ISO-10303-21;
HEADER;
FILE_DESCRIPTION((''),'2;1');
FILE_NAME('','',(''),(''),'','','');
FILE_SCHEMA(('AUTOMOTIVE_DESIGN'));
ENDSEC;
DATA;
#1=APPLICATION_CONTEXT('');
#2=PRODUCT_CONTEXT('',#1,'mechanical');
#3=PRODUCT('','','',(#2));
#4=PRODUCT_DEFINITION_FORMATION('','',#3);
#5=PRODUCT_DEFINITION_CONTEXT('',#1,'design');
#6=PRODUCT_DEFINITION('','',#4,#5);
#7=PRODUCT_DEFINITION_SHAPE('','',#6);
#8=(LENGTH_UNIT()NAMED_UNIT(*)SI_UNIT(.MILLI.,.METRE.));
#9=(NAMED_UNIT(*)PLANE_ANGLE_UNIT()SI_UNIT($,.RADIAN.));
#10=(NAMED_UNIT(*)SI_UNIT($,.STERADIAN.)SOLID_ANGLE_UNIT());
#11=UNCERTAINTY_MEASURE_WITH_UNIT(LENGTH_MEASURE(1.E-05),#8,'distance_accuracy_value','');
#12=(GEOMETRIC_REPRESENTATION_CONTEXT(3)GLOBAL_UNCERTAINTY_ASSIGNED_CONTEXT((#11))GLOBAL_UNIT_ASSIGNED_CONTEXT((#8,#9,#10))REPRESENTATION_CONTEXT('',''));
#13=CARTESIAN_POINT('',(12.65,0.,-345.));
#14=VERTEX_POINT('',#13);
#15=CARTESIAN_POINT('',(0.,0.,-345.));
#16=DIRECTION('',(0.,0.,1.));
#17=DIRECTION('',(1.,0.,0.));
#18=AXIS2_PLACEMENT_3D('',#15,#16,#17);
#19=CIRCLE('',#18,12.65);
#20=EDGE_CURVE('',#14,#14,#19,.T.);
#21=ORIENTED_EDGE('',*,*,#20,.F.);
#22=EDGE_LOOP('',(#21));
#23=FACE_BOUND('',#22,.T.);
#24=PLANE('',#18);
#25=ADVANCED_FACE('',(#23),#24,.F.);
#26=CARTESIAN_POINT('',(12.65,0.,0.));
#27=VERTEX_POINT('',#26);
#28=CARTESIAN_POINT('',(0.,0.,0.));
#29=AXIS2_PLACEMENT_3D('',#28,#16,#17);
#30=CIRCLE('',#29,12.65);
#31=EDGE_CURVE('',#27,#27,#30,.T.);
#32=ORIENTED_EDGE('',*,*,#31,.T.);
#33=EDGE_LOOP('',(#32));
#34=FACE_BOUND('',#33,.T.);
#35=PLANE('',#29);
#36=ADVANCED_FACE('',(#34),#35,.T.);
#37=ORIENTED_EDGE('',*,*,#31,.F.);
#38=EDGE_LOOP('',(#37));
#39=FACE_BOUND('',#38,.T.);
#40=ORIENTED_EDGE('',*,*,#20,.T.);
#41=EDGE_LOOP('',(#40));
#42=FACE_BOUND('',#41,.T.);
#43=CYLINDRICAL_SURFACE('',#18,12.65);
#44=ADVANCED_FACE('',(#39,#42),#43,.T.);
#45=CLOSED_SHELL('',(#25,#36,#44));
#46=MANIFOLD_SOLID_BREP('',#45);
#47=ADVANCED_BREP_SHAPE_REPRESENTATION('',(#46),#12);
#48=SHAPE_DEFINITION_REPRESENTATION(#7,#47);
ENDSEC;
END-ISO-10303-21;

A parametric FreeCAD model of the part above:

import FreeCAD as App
import Part
import Sketcher

doc = App.newDocument("Part")
params = doc.addObject("Spreadsheet::Sheet", "Params")
for row, (alias, value) in enumerate([
    ("sketch1_diameter", "25.3 mm"),
    ("pad1_length", "345 mm"),
], start=1):
    params.set(f"A{row}", alias)
    params.set(f"B{row}", "=" + value)
    params.setAlias(f"B{row}", alias)

body = doc.addObject("PartDesign::Body", "Body")

sketch1 = doc.addObject("Sketcher::SketchObject", "Sketch")
body.addObject(sketch1)
sketch1.AttachmentSupport = (doc.XY_Plane, [""])
sketch1.MapMode = "FlatFace"
sketch1.addGeometry(Part.Circle(App.Vector(0, 0, 0), App.Vector(0, 0, 1), 13), False)
sketch1.addConstraint([
    Sketcher.Constraint("Coincident", 0, 3, -1, 1),
    Sketcher.Constraint("Diameter", 0, 25.3),
])
sketch1.setExpression("Constraints[1]", "Params.sketch1_diameter")
pad1 = doc.addObject("PartDesign::Pad", "Pad")
body.addObject(pad1)
pad1.Profile = sketch1
pad1.setExpression("Length", "Params.pad1_length")
pad1.Reversed = True

doc.recompute()
